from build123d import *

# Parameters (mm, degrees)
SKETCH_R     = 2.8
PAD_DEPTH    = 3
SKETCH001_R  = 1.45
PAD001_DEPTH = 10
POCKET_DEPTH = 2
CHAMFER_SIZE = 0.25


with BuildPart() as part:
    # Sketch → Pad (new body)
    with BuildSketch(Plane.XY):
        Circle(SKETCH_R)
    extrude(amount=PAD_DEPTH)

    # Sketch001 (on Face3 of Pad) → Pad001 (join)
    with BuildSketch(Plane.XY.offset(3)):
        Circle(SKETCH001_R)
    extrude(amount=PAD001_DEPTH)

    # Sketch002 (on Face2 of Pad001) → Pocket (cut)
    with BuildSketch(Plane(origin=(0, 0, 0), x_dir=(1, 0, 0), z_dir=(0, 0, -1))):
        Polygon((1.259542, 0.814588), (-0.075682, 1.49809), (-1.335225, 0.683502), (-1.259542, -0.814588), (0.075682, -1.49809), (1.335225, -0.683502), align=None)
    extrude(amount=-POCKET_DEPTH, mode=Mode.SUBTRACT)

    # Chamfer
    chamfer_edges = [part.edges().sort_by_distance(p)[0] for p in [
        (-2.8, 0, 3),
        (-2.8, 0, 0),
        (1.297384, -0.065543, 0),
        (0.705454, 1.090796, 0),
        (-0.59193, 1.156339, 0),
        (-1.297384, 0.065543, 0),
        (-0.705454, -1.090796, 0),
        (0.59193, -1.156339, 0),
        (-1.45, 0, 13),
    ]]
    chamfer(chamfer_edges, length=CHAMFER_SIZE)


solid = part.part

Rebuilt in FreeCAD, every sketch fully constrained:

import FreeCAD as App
import Part
import Sketcher

V = App.Vector


def edges_at(feature, points):
    """Names of the edges that pass closest to the given points."""
    edges = feature.Shape.Edges
    near = lambda p: min(range(len(edges)), key=lambda i: edges[i].distToShape(Part.Vertex(*p))[0])
    return sorted({f"Edge{near(p) + 1}" for p in points})

doc = App.newDocument("Part")
body = doc.addObject("PartDesign::Body", "Body")

# Sketch on XY plane
sketch1 = body.newObject("Sketcher::SketchObject", "Sketch")
sketch1.AttachmentSupport = (doc.getObject("XY_Plane"), [""])
sketch1.MapMode = "FlatFace"
sketch1.addGeometry(Part.Circle(V(0, 0, 0), V(0, 0, 1), 2.8), False)
sketch1.addConstraint([
    Sketcher.Constraint("Coincident", 0, 3, -1, 1),
    Sketcher.Constraint("Diameter", 0, 5.6),
])
pad1 = body.newObject("PartDesign::Pad", "Pad")
pad1.Profile = sketch1
pad1.Length = 3

# Sketch on XY plane
sketch2 = body.newObject("Sketcher::SketchObject", "Sketch001")
sketch2.AttachmentSupport = (doc.getObject("XY_Plane"), [""])
sketch2.MapMode = "FlatFace"
sketch2.AttachmentOffset = App.Placement(V(0, 0, 3), App.Rotation())
sketch2.addGeometry(Part.Circle(V(0, 0, 0), V(0, 0, 1), 1.4), False)
sketch2.addConstraint([
    Sketcher.Constraint("Coincident", 0, 3, -1, 1),
    Sketcher.Constraint("Diameter", 0, 2.9),
])
pad2 = body.newObject("PartDesign::Pad", "Pad001")
pad2.Profile = sketch2
pad2.Length = 10

# Sketch on XY plane
sketch3 = body.newObject("Sketcher::SketchObject", "Sketch002")
sketch3.AttachmentSupport = (doc.getObject("XY_Plane"), [""])
sketch3.MapMode = "FlatFace"
sketch3.addGeometry([
    Part.LineSegment(V(1.3, -0.8, 0), V(-0.1, -1.5, 0)),  # 0
    Part.LineSegment(V(-0.1, -1.5, 0), V(-1.3, -0.7, 0)),  # 1
    Part.LineSegment(V(-1.3, -0.7, 0), V(-1.3, 0.8, 0)),  # 2
    Part.LineSegment(V(-1.3, 0.8, 0), V(0.1, 1.5, 0)),  # 3
    Part.LineSegment(V(0.1, 1.5, 0), V(1.3, 0.7, 0)),  # 4
    Part.LineSegment(V(1.3, 0.7, 0), V(1.3, -0.8, 0)),  # 5
], False)
sketch3.addConstraint([
    Sketcher.Constraint("Coincident", 0, 2, 1, 1),
    Sketcher.Constraint("Coincident", 1, 2, 2, 1),
    Sketcher.Constraint("Coincident", 2, 2, 3, 1),
    Sketcher.Constraint("Coincident", 3, 2, 4, 1),
    Sketcher.Constraint("Coincident", 4, 2, 5, 1),
    Sketcher.Constraint("Coincident", 5, 2, 0, 1),
    Sketcher.Constraint("Symmetric", 0, 2, 3, 2, -1, 1),
    Sketcher.Constraint("Symmetric", 1, 2, 4, 2, -1, 1),
    Sketcher.Constraint("Symmetric", 2, 2, 5, 2, -1, 1),
    Sketcher.Constraint("Equal", 0, 1),
    Sketcher.Constraint("Equal", 1, 2),
    Sketcher.Constraint("Distance", 0, 1.499999),
    Sketcher.Constraint("DistanceY", 2, 2, 3, 2, 0.683502),
    Sketcher.Constraint("DistanceY", 0, 2, -1, 1, 1.49809),
    Sketcher.Constraint("DistanceX", 2, 2, -1, 1, 1.259542),
])
pocket1 = body.newObject("PartDesign::Pocket", "Pocket")
pocket1.Profile = sketch3
pocket1.Length = 2
pocket1.Reversed = True
doc.recompute()

chamfer = body.newObject("PartDesign::Chamfer", "Chamfer")
chamfer.Base = (pocket1, edges_at(pocket1, [
    (-2.8, 0, 3),
    (-2.8, 0, 0),
    (1.297, -0.066, 0),
    (0.705, 1.091, 0),
    (-0.592, 1.156, 0),
    (-1.297, 0.066, 0),
    (-0.705, -1.091, 0),
    (0.592, -1.156, 0),
    (-1.45, 0, 13),
]))
chamfer.Size = 0.25

doc.recompute()
